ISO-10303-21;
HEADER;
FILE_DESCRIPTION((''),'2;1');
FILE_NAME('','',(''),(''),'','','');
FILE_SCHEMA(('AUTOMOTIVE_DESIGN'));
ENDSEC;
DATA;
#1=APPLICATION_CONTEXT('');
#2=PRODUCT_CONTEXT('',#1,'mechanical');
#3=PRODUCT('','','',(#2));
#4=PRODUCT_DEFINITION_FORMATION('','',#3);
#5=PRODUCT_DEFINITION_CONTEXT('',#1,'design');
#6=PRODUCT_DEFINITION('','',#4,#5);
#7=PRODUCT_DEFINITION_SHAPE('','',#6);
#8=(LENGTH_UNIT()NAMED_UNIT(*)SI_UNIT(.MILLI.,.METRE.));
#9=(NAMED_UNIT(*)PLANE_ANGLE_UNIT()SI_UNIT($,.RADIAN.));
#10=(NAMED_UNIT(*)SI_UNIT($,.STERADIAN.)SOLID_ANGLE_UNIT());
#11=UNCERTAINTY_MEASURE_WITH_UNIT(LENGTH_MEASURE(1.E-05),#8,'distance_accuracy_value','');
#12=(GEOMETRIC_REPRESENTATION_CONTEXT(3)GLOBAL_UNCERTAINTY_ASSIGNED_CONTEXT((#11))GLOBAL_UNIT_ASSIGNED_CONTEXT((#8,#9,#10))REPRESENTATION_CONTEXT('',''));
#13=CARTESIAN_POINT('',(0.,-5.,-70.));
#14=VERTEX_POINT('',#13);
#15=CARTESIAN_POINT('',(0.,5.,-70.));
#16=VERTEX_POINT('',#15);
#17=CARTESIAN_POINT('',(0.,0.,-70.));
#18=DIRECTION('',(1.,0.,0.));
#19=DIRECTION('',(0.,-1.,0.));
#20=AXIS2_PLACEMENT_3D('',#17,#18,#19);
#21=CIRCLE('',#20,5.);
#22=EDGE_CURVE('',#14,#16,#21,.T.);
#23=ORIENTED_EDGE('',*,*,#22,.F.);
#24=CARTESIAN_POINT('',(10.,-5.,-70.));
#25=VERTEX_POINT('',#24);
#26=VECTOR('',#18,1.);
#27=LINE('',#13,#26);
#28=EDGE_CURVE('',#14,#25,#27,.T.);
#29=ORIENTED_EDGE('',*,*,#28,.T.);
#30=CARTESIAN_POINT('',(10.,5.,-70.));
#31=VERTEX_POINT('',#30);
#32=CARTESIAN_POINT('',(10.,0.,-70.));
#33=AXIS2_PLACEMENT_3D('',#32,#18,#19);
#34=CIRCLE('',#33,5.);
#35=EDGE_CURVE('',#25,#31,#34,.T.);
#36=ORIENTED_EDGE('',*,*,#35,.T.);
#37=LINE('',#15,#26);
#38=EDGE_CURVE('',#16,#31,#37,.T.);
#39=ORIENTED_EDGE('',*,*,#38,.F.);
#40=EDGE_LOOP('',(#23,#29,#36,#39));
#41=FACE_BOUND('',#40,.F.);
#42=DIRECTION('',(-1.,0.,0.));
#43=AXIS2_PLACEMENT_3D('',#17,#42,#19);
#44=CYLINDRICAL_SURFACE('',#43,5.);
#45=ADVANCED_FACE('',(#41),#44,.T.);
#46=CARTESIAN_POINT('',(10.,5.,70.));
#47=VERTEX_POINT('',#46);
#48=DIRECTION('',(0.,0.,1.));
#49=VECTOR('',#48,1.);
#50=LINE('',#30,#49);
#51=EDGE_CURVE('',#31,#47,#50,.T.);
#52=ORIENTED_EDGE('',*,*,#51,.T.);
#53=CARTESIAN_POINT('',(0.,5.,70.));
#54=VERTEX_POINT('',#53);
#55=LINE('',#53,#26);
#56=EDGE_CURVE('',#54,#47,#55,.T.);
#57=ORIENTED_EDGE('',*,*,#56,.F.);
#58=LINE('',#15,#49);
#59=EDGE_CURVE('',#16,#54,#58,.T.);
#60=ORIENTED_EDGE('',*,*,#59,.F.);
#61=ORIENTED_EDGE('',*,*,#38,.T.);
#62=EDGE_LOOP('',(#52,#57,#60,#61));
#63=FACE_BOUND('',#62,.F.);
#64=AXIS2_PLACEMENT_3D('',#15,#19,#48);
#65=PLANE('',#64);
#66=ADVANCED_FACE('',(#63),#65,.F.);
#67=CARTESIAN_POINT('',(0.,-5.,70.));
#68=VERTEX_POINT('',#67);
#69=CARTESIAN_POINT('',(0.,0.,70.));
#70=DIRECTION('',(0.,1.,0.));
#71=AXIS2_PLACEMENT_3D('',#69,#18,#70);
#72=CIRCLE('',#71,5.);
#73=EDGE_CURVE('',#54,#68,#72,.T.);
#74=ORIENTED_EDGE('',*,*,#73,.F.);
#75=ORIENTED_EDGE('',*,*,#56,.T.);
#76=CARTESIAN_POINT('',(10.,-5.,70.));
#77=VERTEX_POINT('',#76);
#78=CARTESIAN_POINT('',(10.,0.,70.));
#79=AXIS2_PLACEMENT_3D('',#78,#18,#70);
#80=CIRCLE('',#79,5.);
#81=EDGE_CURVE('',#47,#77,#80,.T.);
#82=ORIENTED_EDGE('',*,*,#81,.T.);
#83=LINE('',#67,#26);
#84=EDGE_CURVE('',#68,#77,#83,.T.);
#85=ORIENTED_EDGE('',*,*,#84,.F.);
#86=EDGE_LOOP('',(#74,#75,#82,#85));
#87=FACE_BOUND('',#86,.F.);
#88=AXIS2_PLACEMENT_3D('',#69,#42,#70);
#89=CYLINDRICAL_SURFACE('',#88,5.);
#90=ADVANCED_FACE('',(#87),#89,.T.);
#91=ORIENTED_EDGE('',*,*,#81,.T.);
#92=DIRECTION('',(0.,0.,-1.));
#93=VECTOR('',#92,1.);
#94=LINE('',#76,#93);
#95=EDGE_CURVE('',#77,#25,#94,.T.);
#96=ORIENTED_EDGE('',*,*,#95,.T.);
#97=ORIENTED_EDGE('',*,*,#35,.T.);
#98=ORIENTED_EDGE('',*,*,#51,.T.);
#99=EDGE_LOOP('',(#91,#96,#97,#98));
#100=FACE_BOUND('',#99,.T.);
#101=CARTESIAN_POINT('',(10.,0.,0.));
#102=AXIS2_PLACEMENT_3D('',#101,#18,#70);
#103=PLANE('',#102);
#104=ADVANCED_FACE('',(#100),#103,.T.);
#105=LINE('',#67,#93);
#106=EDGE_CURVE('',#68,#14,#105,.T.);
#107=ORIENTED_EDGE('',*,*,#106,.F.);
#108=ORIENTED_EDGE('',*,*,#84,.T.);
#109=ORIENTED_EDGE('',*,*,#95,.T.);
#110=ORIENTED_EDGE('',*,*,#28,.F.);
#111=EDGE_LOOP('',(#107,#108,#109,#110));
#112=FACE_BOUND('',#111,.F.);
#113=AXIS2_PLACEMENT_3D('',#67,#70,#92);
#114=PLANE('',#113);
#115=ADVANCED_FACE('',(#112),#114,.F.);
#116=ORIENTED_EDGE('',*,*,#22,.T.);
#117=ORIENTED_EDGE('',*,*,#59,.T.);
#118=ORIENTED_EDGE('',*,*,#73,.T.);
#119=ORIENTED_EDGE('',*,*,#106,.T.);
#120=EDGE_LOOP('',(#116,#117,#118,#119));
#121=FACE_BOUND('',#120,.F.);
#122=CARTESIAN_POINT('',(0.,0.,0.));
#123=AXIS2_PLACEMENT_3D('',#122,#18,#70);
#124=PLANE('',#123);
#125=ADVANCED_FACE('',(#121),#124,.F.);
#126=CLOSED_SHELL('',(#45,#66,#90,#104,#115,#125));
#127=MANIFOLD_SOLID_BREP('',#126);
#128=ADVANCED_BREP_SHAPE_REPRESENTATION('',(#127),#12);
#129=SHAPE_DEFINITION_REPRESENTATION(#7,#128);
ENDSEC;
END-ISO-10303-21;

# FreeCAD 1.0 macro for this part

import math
import FreeCAD as App
import Part
import Sketcher

V = App.Vector

doc = App.newDocument("Part")
body = doc.addObject("PartDesign::Body", "Body")

sketch1 = doc.addObject("Sketcher::SketchObject", "Sketch")
body.addObject(sketch1)
sketch1.AttachmentSupport = (doc.YZ_Plane, [""])
sketch1.MapMode = "FlatFace"
sketch1.addGeometry(Part.ArcOfCircle(Part.Circle(V(0, -70, 0), V(0, 0, 1), 5), math.radians(180), math.radians(360)), False)
sketch1.addGeometry(Part.LineSegment(V(5, -70, 0), V(5, 70, 0)), False)
sketch1.addGeometry(Part.ArcOfCircle(Part.Circle(V(0, 70, 0), V(0, 0, 1), 5), math.radians(0), math.radians(180)), False)
sketch1.addGeometry(Part.LineSegment(V(-5, 70, 0), V(-5, -70, 0)), False)
sketch1.addConstraint(Sketcher.Constraint("Tangent", 0, 2, 1, 1))
sketch1.addConstraint(Sketcher.Constraint("Tangent", 1, 2, 2, 1))
sketch1.addConstraint(Sketcher.Constraint("Tangent", 2, 2, 3, 1))
sketch1.addConstraint(Sketcher.Constraint("Tangent", 3, 2, 0, 1))
sketch1.addConstraint(Sketcher.Constraint("Vertical", 1))
sketch1.addConstraint(Sketcher.Constraint("Vertical", 3))
sketch1.addConstraint(Sketcher.Constraint("Symmetric", 0, 3, 2, 3, -1, 1))
sketch1.addConstraint(Sketcher.Constraint("Radius", 0, 5.0))
sketch1.addConstraint(Sketcher.Constraint("DistanceY", 1, 1, 1, 2, 140.0))
pad1 = doc.addObject("PartDesign::Pad", "Pad")
body.addObject(pad1)
pad1.Profile = sketch1
pad1.Length = 10

doc.recompute()
